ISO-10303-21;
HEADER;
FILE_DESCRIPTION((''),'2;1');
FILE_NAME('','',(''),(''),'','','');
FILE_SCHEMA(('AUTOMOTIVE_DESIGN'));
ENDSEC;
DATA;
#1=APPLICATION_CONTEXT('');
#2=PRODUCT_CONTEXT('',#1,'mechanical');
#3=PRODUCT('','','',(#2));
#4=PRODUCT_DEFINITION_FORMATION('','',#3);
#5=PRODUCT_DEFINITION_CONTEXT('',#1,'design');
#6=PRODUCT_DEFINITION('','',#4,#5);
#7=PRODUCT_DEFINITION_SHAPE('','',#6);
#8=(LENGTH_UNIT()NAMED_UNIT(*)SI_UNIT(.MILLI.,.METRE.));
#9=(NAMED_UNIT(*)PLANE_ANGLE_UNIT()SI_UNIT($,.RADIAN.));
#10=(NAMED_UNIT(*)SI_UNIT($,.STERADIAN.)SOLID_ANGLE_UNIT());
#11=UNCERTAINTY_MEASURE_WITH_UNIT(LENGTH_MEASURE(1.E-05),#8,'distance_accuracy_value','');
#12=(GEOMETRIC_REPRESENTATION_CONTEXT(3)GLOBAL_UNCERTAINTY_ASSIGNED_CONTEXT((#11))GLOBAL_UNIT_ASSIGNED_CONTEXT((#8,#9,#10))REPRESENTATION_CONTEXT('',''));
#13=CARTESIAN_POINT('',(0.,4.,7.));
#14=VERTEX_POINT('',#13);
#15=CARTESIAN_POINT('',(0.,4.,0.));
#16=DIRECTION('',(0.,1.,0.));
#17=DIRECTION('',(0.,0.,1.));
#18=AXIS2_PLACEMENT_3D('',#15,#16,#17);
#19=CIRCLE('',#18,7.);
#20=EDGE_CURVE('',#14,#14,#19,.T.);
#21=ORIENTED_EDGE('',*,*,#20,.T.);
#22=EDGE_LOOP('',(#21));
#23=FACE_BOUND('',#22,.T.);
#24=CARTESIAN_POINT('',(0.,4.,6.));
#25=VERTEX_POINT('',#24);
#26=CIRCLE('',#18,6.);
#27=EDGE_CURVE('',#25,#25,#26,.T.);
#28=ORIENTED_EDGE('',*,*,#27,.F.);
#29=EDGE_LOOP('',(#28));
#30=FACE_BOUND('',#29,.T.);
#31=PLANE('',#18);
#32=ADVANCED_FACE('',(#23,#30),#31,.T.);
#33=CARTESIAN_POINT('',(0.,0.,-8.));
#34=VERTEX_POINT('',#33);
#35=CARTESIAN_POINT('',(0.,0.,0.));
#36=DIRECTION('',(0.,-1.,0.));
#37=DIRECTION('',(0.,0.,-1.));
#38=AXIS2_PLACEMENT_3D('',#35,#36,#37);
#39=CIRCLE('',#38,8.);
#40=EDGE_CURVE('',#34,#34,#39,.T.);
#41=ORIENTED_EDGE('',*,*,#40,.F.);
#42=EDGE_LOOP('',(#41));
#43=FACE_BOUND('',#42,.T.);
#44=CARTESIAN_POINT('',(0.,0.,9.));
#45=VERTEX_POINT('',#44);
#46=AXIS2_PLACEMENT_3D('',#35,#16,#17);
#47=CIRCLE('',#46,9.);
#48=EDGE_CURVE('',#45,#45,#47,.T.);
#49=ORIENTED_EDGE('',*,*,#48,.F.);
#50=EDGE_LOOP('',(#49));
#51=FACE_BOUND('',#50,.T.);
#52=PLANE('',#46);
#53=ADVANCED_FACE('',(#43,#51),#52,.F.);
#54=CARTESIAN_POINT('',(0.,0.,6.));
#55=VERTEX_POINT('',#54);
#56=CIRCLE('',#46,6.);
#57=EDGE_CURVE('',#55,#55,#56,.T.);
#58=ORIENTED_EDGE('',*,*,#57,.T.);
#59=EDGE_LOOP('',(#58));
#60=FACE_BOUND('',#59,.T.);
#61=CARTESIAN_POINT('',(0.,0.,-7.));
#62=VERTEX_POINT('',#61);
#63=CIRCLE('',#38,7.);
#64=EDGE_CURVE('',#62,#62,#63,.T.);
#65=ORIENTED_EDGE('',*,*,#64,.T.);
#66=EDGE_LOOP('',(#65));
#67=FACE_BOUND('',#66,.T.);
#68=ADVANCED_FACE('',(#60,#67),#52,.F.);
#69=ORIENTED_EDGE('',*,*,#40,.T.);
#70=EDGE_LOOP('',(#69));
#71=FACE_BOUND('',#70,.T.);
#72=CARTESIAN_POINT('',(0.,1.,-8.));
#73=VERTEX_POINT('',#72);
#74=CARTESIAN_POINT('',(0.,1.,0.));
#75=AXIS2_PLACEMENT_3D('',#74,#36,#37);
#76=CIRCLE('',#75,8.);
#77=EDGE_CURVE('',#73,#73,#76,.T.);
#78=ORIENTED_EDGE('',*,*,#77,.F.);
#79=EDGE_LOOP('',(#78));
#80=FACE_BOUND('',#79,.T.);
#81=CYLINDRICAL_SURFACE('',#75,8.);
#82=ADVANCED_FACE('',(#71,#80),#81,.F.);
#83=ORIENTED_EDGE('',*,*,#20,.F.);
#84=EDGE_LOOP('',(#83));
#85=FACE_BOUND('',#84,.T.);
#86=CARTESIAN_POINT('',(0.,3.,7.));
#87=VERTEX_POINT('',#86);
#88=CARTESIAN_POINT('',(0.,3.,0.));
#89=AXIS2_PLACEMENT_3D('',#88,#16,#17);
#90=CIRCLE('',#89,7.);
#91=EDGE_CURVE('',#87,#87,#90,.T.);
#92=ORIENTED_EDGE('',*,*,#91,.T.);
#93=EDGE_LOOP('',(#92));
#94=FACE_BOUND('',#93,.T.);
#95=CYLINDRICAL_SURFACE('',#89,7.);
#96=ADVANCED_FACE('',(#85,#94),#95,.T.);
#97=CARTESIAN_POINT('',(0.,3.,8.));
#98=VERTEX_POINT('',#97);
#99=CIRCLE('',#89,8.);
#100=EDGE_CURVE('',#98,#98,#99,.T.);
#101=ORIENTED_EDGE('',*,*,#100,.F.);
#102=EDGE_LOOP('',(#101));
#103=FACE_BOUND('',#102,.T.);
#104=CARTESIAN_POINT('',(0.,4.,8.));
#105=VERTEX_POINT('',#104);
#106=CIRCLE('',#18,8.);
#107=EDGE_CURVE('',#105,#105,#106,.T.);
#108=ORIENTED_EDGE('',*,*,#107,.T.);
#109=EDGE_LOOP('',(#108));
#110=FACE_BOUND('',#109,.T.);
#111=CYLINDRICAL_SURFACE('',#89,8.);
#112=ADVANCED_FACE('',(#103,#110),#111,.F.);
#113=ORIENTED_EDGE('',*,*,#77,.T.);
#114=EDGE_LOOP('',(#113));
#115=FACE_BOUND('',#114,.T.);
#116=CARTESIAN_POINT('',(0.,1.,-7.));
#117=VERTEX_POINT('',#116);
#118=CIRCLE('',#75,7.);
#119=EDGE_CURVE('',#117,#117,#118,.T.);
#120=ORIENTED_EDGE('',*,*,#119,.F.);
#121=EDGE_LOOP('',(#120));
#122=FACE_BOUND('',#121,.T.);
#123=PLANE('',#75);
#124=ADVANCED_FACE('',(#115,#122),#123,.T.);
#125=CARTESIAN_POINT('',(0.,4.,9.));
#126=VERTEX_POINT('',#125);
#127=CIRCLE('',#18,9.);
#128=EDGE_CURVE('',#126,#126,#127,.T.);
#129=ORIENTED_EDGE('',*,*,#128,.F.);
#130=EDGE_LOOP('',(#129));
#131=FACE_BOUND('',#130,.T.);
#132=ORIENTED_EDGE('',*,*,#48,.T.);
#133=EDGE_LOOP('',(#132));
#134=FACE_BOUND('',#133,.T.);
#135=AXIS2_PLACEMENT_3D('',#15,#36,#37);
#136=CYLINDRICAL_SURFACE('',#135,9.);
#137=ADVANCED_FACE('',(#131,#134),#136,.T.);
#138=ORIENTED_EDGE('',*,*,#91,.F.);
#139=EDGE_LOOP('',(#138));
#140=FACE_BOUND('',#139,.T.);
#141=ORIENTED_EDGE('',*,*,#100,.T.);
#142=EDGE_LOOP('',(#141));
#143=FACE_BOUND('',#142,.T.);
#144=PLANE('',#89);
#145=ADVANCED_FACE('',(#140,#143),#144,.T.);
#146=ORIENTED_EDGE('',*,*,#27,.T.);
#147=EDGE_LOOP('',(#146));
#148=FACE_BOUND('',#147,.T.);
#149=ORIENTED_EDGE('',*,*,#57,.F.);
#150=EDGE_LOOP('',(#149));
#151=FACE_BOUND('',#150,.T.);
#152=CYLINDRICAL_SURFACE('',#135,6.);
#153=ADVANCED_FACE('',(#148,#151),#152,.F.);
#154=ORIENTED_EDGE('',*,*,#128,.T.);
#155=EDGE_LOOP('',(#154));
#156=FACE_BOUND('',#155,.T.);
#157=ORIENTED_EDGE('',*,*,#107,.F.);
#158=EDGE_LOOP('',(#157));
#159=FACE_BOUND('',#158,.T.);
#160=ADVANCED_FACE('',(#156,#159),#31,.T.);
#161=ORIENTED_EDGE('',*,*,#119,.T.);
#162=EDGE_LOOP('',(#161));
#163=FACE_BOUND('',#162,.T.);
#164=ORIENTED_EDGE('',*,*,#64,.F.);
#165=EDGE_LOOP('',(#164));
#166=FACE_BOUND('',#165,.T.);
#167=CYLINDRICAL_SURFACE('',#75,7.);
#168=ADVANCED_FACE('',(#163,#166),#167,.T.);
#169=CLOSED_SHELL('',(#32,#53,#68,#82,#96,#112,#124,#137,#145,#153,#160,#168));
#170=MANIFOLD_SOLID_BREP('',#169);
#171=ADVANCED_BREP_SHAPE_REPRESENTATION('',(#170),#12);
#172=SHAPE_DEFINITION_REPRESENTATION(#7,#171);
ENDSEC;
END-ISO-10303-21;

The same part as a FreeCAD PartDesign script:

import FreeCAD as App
import Part
import Sketcher

V = App.Vector
Q = App.Units.Quantity

doc = App.newDocument("Part")
params = doc.addObject("Spreadsheet::Sheet", "Params")
for row, (alias, value) in enumerate([
    ("sketch1_diameter", "18 mm"),
    ("sketch1_diameter2", "12 mm"),
    ("pad1_length", "4 mm"),
    ("sketch2_diameter", "16 mm"),
    ("sketch2_diameter2", "14 mm"),
    ("pocket1_length", "1 mm"),
    ("sketch3_diameter", "16 mm"),
    ("sketch3_diameter2", "14 mm"),
    ("pocket2_length", "1 mm"),
], start=1):
    params.set(f"A{row}", alias)
    params.set(f"B{row}", "=" + value)
    params.setAlias(f"B{row}", alias)

body = doc.addObject("PartDesign::Body", "Body")

# Sketch on XZ plane
sketch1 = body.newObject("Sketcher::SketchObject", "Sketch")
sketch1.AttachmentSupport = (doc.getObject("XZ_Plane"), [""])
sketch1.MapMode = "FlatFace"
sketch1.addGeometry([
    Part.Circle(V(0, 0, 0), V(0, 0, 1), 9),
    Part.Circle(V(0, 0, 0), V(0, 0, 1), 6),
], False)
sketch1.addConstraint([
    Sketcher.Constraint("Coincident", 0, 3, -1, 1),
    Sketcher.Constraint("Coincident", 1, 3, -1, 1),
    Sketcher.Constraint("Diameter", 0, Q("18 mm")),
    Sketcher.Constraint("Diameter", 1, Q("12 mm")),
])
sketch1.setExpression("Constraints[2]", "Params.sketch1_diameter")
sketch1.setExpression("Constraints[3]", "Params.sketch1_diameter2")
pad1 = body.newObject("PartDesign::Pad", "Pad")
pad1.Profile = sketch1
pad1.setExpression("Length", "Params.pad1_length")
pad1.Reversed = True

# Sketch on XZ plane
sketch2 = body.newObject("Sketcher::SketchObject", "Sketch001")
sketch2.AttachmentSupport = (doc.getObject("XZ_Plane"), [""])
sketch2.MapMode = "FlatFace"
sketch2.AttachmentOffset = App.Placement(V(0, 0, -4), App.Rotation())
sketch2.addGeometry([
    Part.Circle(V(0, 0, 0), V(0, 0, 1), 8),
    Part.Circle(V(0, 0, 0), V(0, 0, 1), 7),
], False)
sketch2.addConstraint([
    Sketcher.Constraint("Coincident", 0, 3, -1, 1),
    Sketcher.Constraint("Coincident", 1, 3, -1, 1),
    Sketcher.Constraint("Diameter", 0, Q("16 mm")),
    Sketcher.Constraint("Diameter", 1, Q("14 mm")),
])
sketch2.setExpression("Constraints[2]", "Params.sketch2_diameter")
sketch2.setExpression("Constraints[3]", "Params.sketch2_diameter2")
pocket1 = body.newObject("PartDesign::Pocket", "Pocket")
pocket1.Profile = sketch2
pocket1.setExpression("Length", "Params.pocket1_length")
pocket1.Reversed = True

# Sketch on XZ plane
sketch3 = body.newObject("Sketcher::SketchObject", "Sketch002")
sketch3.AttachmentSupport = (doc.getObject("XZ_Plane"), [""])
sketch3.MapMode = "FlatFace"
sketch3.AttachmentOffset = App.Placement(V(0, 0, -1), App.Rotation())
sketch3.addGeometry([
    Part.Circle(V(0, 0, 0), V(0, 0, 1), 8),
    Part.Circle(V(0, 0, 0), V(0, 0, 1), 7),
], False)
sketch3.addConstraint([
    Sketcher.Constraint("Coincident", 0, 3, -1, 1),
    Sketcher.Constraint("Coincident", 1, 3, -1, 1),
    Sketcher.Constraint("Diameter", 0, Q("16 mm")),
    Sketcher.Constraint("Diameter", 1, Q("14 mm")),
])
sketch3.setExpression("Constraints[2]", "Params.sketch3_diameter")
sketch3.setExpression("Constraints[3]", "Params.sketch3_diameter2")
pocket2 = body.newObject("PartDesign::Pocket", "Pocket001")
pocket2.Profile = sketch3
pocket2.setExpression("Length", "Params.pocket2_length")
pocket2.Reversed = True

doc.recompute()
